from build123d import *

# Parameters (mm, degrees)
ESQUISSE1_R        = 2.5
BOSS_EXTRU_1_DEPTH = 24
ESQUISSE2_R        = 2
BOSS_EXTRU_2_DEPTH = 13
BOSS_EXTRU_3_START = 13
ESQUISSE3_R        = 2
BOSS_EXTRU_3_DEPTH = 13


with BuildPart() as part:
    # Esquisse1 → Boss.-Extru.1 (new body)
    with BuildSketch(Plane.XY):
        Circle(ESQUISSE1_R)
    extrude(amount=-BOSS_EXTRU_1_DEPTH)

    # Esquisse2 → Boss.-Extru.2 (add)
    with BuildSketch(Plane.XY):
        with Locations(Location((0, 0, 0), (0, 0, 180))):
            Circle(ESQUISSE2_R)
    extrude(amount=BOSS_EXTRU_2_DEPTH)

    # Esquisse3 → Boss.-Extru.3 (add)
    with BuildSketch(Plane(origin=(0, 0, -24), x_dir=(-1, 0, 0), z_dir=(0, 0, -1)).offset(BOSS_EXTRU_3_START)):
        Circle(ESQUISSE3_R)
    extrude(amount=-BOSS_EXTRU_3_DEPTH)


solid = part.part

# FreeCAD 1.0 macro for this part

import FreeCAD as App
import Part
import Sketcher
Q = App.Units.Quantity

doc = App.newDocument("Part")
body = doc.addObject("PartDesign::Body", "Body")

sketch1 = body.newObject("Sketcher::SketchObject", "Sketch")
sketch1.AttachmentSupport = (doc.getObject("XY_Plane"), [""])
sketch1.MapMode = "FlatFace"
sketch1.addGeometry(Part.Circle(App.Vector(0, 0, 0), App.Vector(0, 0, 1), 2.5), False)
sketch1.addConstraint([
    Sketcher.Constraint("Coincident", 0, 3, -1, 1),
    Sketcher.Constraint("Diameter", 0, Q("5 mm")),
])
pad1 = body.newObject("PartDesign::Pad", "Pad")
pad1.Profile = sketch1
pad1.Length = 24
pad1.Reversed = True

sketch2 = body.newObject("Sketcher::SketchObject", "Sketch001")
sketch2.AttachmentSupport = (doc.getObject("XY_Plane"), [""])
sketch2.MapMode = "FlatFace"
sketch2.addGeometry(Part.Circle(App.Vector(0, 0, 0), App.Vector(0, 0, 1), 2), False)
sketch2.addConstraint([
    Sketcher.Constraint("Coincident", 0, 3, -1, 1),
    Sketcher.Constraint("Diameter", 0, Q("4 mm")),
])
pad2 = body.newObject("PartDesign::Pad", "Pad001")
pad2.Profile = sketch2
pad2.Length = 13

sketch3 = body.newObject("Sketcher::SketchObject", "Sketch002")
sketch3.AttachmentSupport = (doc.getObject("XY_Plane"), [""])
sketch3.MapMode = "FlatFace"
sketch3.AttachmentOffset = App.Placement(App.Vector(0, 0, -37), App.Rotation())
sketch3.addGeometry(Part.Circle(App.Vector(0, 0, 0), App.Vector(0, 0, 1), 2), False)
sketch3.addConstraint([
    Sketcher.Constraint("Coincident", 0, 3, -1, 1),
    Sketcher.Constraint("Diameter", 0, Q("4 mm")),
])
pad3 = body.newObject("PartDesign::Pad", "Pad002")
pad3.Profile = sketch3
pad3.Length = 13

doc.recompute()
